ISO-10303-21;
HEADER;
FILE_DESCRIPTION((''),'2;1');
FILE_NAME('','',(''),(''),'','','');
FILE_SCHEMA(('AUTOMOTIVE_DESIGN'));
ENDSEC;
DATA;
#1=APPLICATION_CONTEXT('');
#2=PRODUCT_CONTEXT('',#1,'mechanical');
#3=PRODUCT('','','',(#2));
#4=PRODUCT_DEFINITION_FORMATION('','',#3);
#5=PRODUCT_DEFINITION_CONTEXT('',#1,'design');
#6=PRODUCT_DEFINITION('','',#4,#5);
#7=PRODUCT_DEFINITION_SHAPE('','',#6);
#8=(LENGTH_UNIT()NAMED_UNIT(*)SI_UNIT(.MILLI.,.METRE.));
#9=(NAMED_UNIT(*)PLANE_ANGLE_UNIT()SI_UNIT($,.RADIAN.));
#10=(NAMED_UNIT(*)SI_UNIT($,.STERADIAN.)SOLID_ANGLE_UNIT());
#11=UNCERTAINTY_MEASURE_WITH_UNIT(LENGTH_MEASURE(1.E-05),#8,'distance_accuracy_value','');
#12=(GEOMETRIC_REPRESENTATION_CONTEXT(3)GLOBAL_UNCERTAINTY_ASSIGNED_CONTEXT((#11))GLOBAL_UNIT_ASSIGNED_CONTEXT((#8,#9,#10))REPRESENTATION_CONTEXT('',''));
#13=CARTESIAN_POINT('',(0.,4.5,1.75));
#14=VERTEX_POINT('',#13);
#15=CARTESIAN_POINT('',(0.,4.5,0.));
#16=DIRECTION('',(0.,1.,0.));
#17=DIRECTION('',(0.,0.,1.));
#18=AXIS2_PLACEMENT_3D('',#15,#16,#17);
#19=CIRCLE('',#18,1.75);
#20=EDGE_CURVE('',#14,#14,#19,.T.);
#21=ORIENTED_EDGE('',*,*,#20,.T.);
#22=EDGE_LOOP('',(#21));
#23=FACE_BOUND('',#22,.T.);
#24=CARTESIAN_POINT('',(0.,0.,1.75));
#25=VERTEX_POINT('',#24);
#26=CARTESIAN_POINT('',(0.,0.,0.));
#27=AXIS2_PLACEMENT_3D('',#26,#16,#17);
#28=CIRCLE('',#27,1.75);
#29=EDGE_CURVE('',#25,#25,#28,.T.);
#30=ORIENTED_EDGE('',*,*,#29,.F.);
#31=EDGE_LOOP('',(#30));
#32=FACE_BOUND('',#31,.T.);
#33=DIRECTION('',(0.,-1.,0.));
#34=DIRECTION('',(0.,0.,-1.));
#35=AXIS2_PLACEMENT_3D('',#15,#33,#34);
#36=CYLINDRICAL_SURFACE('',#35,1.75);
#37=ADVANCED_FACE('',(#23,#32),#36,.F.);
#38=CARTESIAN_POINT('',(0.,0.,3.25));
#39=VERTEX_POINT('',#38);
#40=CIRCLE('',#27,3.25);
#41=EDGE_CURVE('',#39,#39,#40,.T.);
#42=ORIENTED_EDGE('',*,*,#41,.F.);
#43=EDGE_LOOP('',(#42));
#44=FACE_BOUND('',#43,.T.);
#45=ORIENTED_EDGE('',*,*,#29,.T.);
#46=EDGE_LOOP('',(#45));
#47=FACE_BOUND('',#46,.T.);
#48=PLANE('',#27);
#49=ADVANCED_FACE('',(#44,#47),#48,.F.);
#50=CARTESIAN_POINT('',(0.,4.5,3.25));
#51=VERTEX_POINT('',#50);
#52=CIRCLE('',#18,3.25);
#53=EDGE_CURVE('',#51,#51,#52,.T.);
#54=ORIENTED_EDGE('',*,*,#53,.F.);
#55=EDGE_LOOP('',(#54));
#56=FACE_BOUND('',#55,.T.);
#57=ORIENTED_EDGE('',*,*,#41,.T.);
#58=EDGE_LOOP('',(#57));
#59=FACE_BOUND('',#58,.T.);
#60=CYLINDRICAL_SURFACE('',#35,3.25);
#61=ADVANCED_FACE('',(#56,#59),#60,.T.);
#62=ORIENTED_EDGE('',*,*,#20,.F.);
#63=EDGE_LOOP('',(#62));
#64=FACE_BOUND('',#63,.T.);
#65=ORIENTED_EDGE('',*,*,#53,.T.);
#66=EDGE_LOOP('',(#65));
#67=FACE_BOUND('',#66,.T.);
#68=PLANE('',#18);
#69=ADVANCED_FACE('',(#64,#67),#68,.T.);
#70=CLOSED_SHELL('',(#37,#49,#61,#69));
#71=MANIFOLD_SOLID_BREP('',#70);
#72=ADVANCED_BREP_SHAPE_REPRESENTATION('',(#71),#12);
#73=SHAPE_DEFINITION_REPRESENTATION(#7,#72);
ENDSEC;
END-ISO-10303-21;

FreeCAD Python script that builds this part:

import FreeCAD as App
import Part
import Sketcher

V = App.Vector

doc = App.newDocument("Part")
body = doc.addObject("PartDesign::Body", "Body")

# Sketch on XZ plane
sketch1 = body.newObject("Sketcher::SketchObject", "Sketch")
sketch1.AttachmentSupport = (doc.getObject("XZ_Plane"), [""])
sketch1.MapMode = "FlatFace"
sketch1.addGeometry([
    Part.Circle(V(0, 0, 0), V(0, 0, 1), 3.2),
    Part.Circle(V(0, 0, 0), V(0, 0, 1), 1.8),
], False)
sketch1.addConstraint([
    Sketcher.Constraint("Coincident", 0, 3, -1, 1),
    Sketcher.Constraint("Coincident", 1, 3, -1, 1),
    Sketcher.Constraint("Diameter", 0, 6.5),
    Sketcher.Constraint("Diameter", 1, 3.5),
])
pad1 = body.newObject("PartDesign::Pad", "Pad")
pad1.Profile = sketch1
pad1.Length = 4.5
pad1.Reversed = True

doc.recompute()
